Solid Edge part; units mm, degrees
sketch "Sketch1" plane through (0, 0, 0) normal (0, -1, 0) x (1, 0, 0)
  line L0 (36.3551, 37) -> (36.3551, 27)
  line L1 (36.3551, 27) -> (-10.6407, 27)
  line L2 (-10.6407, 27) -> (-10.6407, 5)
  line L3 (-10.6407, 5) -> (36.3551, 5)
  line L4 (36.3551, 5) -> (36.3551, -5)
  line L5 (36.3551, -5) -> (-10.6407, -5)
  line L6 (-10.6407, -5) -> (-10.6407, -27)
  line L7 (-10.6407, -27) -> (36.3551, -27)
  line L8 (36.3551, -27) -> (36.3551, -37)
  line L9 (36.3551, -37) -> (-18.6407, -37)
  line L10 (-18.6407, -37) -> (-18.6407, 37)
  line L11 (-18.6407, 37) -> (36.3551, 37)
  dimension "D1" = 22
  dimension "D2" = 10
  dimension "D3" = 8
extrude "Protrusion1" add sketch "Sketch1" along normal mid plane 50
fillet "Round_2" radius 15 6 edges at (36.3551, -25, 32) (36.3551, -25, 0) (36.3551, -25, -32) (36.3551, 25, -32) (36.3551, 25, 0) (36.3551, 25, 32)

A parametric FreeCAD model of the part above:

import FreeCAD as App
import Part
import Sketcher

V = App.Vector
Q = App.Units.Quantity


def edges_at(feature, points):
    """Names of the edges that pass closest to the given points."""
    edges = feature.Shape.Edges
    near = lambda p: min(range(len(edges)), key=lambda i: edges[i].distToShape(Part.Vertex(*p))[0])
    return sorted({f"Edge{near(p) + 1}" for p in points})


def add_polygon(sketch, points):
    """Adds a closed chain of lines whose ends are joined by coincident constraints."""
    first, n = sketch.GeometryCount, len(points)
    for a, b in zip(points, points[1:] + points[:1]):
        sketch.addGeometry(Part.LineSegment(App.Vector(*a, 0), App.Vector(*b, 0)), False)
    for i in range(n):
        sketch.addConstraint(Sketcher.Constraint("Coincident", first + i, 2, first + (i + 1) % n, 1))

doc = App.newDocument("Part")
body = doc.addObject("PartDesign::Body", "Body")

# Sketch on XZ plane
sketch1 = body.newObject("Sketcher::SketchObject", "Sketch")
sketch1.AttachmentSupport = (doc.getObject("XZ_Plane"), [""])
sketch1.MapMode = "FlatFace"
add_polygon(sketch1, [(36.3551, 27), (36.3551, 37), (-18.6407, 37), (-18.6407, -37), (36.3551, -37), (36.3551, -27), (-10.6407, -27), (-10.6407, -5), (36.3551, -5), (36.3551, 5), (-10.6407, 5), (-10.6407, 27)])  # lines 0-11
sketch1.addConstraint([
    Sketcher.Constraint("Vertical", 0),
    Sketcher.Constraint("Horizontal", 1),
    Sketcher.Constraint("Vertical", 2),
    Sketcher.Constraint("Horizontal", 3),
    Sketcher.Constraint("Vertical", 4),
    Sketcher.Constraint("Horizontal", 5),
    Sketcher.Constraint("Vertical", 6),
    Sketcher.Constraint("Horizontal", 7),
    Sketcher.Constraint("Vertical", 8),
    Sketcher.Constraint("Horizontal", 9),
    Sketcher.Constraint("Vertical", 10),
    Sketcher.Constraint("Horizontal", 11),
    Sketcher.Constraint("Symmetric", 0, 2, 3, 2, -1),
    Sketcher.Constraint("Symmetric", 6, 2, 9, 2, -1),
    Sketcher.Constraint("Vertical", 4, 2, 7, 2),
    Sketcher.Constraint("Equal", 0, 4),
    Sketcher.Constraint("Equal", 4, 8),
    Sketcher.Constraint("DistanceY", 0, 1, 0, 2, Q("10 mm")),
    Sketcher.Constraint("DistanceY", 2, 2, 2, 1, Q("74 mm")),
    Sketcher.Constraint("DistanceX", -1, 1, 0, 2, Q("36.355 mm")),
    Sketcher.Constraint("DistanceX", 2, 2, 5, 2, Q("8 mm")),
    Sketcher.Constraint("DistanceX", 5, 2, -1, 1, Q("10.6407 mm")),
])
pad1 = body.newObject("PartDesign::Pad", "Pad")
pad1.Profile = sketch1
pad1.Length = 50
pad1.Midplane = True
doc.recompute()

fillet = body.newObject("PartDesign::Fillet", "Fillet")
fillet.Base = (pad1, edges_at(pad1, [
    (36.355, -25, 32),
    (36.355, -25, 0),
    (36.355, -25, -32),
    (36.355, 25, -32),
    (36.355, 25, 0),
    (36.355, 25, 32),
]))
fillet.Radius = 15

doc.recompute()
